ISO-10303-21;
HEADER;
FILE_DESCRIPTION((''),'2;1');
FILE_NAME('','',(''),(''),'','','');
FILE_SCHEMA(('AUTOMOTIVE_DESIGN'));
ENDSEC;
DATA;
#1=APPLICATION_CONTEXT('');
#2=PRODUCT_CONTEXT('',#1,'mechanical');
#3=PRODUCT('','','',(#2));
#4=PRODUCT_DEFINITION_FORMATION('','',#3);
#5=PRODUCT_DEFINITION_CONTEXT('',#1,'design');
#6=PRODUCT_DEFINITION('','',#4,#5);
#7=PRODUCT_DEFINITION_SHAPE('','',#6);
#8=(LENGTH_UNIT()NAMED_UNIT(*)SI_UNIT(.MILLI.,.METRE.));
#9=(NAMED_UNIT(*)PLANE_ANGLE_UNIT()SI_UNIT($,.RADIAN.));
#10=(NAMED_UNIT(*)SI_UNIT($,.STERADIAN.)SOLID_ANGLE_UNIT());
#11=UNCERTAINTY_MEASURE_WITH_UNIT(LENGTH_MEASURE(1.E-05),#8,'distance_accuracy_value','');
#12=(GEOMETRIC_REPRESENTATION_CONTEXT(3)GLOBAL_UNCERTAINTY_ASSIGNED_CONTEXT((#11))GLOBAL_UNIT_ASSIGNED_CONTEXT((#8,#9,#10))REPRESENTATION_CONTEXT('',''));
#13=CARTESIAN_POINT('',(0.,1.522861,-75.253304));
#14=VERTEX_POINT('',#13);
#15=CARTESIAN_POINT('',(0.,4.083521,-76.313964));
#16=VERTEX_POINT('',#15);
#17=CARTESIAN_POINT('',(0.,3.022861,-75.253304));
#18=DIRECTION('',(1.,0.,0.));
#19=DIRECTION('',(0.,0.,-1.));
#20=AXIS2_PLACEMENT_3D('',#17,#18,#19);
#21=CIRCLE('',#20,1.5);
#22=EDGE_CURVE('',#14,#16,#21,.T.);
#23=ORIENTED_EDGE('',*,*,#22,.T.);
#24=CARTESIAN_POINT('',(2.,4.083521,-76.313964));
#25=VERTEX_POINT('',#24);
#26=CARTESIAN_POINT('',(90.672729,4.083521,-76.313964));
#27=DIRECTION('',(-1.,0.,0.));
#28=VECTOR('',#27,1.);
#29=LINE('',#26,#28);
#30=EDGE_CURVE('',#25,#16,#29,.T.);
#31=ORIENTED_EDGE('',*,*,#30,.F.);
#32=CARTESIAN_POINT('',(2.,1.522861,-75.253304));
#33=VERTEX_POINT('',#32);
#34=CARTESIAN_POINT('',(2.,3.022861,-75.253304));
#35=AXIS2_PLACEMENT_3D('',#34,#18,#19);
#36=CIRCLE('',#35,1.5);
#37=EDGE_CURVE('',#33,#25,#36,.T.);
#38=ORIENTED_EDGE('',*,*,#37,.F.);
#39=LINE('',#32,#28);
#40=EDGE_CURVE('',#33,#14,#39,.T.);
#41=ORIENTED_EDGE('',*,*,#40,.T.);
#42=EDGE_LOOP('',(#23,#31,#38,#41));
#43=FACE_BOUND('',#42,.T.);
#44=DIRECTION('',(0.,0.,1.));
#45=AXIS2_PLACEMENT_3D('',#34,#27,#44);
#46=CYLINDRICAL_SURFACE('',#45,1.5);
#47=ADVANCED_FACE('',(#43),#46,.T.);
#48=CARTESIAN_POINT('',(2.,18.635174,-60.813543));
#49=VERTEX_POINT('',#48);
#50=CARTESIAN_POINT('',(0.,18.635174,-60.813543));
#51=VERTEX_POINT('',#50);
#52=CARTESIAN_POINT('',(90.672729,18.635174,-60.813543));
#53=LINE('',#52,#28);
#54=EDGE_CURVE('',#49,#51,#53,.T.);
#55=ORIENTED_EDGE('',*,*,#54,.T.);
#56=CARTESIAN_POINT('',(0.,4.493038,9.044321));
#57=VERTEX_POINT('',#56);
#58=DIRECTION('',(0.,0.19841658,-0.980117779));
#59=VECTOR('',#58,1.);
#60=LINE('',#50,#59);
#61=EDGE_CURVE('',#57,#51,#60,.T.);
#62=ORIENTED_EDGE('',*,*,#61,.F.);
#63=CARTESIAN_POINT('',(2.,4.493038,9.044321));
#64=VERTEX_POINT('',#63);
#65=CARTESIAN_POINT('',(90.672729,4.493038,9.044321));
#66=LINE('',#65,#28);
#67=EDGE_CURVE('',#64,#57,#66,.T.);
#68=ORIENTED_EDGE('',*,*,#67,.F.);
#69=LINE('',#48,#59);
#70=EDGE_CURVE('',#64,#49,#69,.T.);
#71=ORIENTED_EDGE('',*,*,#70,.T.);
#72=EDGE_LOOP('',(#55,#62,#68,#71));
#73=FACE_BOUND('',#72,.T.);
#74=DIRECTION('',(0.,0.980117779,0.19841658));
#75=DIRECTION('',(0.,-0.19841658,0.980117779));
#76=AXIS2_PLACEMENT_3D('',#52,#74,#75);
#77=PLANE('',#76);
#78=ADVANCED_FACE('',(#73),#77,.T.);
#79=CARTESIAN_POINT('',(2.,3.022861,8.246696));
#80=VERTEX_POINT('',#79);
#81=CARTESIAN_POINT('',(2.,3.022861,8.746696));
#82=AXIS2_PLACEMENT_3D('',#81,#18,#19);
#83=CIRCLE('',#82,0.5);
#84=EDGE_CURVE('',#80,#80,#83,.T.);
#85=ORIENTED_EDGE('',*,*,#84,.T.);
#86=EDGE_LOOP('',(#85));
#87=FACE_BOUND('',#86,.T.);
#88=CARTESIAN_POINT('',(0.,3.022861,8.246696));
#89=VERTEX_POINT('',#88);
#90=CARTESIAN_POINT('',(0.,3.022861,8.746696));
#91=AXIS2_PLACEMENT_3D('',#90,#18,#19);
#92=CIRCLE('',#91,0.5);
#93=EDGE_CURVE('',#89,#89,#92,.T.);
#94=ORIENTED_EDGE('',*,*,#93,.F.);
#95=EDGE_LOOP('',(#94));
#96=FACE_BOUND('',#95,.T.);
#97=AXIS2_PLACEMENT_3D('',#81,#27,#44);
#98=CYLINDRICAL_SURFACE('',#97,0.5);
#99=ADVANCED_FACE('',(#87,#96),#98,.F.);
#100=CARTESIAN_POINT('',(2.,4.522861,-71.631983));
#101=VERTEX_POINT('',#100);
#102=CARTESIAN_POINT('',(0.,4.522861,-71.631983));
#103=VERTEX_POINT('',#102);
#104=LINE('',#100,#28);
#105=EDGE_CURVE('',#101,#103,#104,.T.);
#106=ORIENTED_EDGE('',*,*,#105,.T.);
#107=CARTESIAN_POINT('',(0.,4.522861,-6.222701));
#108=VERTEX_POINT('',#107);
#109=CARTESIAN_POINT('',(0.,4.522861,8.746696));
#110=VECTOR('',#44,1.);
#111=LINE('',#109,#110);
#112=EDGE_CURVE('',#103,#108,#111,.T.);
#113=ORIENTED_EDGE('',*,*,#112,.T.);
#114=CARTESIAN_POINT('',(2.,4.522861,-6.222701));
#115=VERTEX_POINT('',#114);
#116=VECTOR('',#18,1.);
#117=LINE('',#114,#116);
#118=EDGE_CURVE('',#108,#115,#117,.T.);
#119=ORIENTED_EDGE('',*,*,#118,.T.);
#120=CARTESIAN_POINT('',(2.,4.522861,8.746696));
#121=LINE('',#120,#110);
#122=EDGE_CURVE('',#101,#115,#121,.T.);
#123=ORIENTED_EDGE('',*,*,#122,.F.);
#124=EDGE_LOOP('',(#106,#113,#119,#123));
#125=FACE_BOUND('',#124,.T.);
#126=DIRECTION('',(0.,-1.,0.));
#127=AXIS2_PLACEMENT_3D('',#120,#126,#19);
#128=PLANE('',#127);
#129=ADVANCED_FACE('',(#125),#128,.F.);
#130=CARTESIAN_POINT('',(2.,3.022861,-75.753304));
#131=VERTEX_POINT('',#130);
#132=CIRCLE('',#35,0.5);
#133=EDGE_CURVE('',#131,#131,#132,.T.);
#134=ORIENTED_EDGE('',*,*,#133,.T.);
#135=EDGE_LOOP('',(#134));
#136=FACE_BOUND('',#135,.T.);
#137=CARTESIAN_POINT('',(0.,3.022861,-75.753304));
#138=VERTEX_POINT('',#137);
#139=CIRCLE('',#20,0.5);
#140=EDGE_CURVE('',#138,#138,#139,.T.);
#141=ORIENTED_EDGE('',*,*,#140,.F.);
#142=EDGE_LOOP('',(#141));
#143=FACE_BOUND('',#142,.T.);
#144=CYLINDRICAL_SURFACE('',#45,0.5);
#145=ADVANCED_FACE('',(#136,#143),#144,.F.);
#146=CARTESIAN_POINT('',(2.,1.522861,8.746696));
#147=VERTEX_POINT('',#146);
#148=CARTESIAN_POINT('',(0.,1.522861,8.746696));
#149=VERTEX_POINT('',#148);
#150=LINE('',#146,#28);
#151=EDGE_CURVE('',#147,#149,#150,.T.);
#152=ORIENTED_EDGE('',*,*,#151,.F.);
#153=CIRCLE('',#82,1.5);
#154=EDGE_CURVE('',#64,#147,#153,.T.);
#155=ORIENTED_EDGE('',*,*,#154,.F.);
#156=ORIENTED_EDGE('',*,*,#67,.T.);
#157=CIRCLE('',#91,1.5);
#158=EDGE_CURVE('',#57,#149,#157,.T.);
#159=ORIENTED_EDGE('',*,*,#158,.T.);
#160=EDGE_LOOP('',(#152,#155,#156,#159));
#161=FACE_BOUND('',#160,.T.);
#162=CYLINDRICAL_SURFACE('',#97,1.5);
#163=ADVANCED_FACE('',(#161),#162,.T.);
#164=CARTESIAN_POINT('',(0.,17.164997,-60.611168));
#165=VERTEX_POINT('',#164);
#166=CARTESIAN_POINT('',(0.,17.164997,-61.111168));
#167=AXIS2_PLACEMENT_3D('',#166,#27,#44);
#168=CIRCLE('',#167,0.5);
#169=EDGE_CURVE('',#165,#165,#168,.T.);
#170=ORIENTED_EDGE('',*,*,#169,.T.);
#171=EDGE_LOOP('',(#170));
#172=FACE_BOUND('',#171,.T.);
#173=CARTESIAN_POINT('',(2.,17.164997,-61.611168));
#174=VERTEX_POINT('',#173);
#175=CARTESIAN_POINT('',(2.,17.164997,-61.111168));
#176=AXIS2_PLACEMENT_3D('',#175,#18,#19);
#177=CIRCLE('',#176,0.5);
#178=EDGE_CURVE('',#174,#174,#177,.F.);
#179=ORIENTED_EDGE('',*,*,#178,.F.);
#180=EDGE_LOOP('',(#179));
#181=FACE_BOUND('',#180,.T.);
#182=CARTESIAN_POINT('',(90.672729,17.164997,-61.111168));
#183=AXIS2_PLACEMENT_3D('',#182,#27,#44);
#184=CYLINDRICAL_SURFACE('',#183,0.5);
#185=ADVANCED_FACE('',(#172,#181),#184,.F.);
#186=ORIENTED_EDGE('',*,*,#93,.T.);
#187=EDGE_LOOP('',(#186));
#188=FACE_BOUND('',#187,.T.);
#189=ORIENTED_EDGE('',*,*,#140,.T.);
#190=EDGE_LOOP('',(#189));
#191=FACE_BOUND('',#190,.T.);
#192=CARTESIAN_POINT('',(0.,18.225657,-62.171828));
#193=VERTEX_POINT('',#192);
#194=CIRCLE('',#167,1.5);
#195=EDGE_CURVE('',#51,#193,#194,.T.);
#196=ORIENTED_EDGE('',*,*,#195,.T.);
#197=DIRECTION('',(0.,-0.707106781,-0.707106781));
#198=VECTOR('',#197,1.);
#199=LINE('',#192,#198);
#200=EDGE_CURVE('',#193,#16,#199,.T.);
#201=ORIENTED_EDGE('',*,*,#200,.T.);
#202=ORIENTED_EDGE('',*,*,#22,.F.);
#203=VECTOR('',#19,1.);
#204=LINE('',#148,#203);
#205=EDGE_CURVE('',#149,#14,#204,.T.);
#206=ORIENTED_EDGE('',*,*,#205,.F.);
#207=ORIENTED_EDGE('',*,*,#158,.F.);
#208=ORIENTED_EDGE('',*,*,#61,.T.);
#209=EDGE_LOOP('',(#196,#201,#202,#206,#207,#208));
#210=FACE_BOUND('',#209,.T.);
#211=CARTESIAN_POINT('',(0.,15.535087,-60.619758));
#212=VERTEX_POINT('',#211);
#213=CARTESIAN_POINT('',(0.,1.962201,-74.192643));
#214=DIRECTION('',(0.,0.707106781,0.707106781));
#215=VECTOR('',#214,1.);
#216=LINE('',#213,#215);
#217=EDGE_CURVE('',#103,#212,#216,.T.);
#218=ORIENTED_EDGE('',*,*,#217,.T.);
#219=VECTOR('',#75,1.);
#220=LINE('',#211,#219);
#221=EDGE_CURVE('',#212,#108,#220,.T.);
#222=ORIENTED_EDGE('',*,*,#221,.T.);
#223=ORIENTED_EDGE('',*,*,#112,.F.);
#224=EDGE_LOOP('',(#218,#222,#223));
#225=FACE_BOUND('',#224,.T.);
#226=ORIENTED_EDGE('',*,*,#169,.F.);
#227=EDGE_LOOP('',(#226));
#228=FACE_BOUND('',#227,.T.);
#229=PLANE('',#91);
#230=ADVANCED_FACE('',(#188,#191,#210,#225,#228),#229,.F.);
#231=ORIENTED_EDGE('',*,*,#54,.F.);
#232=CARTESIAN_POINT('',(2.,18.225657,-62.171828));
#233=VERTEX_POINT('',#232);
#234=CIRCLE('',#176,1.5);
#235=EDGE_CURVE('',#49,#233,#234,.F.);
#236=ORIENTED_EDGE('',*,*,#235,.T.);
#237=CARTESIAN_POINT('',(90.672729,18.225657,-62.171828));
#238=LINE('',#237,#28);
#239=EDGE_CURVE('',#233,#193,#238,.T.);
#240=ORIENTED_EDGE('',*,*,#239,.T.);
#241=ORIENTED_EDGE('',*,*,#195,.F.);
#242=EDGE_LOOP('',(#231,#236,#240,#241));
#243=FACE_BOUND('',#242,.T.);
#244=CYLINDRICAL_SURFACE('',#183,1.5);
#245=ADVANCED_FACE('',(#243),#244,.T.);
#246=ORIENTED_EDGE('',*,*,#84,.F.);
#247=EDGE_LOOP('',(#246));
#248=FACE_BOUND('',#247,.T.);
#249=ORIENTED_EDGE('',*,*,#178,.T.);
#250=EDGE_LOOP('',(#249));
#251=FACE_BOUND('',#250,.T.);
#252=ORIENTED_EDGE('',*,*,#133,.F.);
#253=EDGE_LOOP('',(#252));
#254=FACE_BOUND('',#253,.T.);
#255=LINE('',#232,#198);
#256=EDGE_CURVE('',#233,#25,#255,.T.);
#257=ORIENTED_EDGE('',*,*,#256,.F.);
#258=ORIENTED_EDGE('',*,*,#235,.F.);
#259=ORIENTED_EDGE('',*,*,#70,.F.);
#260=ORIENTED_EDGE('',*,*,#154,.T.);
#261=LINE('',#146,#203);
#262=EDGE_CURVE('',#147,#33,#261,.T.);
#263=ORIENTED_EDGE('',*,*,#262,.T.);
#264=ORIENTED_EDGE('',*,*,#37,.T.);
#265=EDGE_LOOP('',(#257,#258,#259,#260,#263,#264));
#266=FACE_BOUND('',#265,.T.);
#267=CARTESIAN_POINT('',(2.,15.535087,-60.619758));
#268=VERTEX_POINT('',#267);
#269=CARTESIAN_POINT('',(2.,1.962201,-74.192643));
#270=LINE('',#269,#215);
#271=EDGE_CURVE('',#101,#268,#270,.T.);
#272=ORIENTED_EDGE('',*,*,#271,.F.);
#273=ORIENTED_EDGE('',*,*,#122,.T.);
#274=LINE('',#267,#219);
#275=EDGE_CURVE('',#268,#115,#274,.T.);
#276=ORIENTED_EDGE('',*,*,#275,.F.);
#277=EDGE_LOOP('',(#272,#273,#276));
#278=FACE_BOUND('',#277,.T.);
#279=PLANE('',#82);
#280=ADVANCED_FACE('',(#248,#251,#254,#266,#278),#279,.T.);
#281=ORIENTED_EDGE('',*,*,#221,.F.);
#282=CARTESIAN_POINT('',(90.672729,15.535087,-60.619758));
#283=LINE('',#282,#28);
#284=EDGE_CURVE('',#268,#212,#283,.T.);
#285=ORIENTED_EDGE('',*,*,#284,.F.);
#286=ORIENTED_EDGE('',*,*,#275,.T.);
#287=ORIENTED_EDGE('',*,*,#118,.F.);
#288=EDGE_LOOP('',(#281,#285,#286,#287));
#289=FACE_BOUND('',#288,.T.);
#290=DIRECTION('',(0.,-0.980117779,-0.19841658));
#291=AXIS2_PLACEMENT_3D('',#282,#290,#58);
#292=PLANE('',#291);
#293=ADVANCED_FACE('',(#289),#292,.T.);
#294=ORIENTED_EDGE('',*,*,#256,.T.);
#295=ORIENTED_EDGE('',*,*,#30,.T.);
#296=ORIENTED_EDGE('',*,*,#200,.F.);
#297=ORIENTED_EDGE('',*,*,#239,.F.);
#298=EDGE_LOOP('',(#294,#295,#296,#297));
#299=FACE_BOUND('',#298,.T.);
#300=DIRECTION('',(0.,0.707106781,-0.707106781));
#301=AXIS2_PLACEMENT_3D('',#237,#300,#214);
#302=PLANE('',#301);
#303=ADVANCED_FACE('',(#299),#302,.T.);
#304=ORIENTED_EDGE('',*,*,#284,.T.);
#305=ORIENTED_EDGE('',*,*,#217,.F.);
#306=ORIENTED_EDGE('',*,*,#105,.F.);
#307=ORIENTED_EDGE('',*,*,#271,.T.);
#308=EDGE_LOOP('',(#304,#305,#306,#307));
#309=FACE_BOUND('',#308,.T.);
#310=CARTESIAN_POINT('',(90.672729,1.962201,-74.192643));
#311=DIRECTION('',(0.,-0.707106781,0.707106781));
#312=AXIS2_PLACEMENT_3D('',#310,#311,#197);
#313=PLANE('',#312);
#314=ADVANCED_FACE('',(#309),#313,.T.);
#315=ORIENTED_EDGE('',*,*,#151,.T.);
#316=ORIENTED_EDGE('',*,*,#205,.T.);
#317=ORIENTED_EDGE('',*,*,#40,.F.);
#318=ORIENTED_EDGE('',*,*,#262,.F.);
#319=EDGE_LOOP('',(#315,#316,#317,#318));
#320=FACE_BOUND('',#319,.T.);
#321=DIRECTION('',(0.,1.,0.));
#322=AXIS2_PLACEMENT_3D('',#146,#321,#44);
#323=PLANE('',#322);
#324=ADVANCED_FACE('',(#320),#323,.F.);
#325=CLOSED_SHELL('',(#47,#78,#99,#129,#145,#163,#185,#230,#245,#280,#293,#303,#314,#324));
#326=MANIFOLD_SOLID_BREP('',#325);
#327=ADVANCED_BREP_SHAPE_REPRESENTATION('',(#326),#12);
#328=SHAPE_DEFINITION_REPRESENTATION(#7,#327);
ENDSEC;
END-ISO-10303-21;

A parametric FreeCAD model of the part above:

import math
import FreeCAD as App
import Part
import Sketcher
from FreeCAD import Vector
Q = App.Units.Quantity

doc = App.newDocument("Part")
body = doc.addObject("PartDesign::Body", "Body")

# Sketch on YZ plane
sketch1 = body.newObject("Sketcher::SketchObject", "Sketch")
sketch1.AttachmentSupport = (doc.getObject("YZ_Plane"), [""])
sketch1.MapMode = "FlatFace"
sketch1.addGeometry([
    Part.LineSegment(Vector(4.5, -75.3, 0), Vector(4.5, 8.7, 0)),  # 0
    Part.ArcOfCircle(Part.Circle(Vector(3, 8.7, 0), Vector(0, 0, 1), 1.5), math.radians(0), math.radians(180)),  # 1
    Part.LineSegment(Vector(1.5, 8.7, 0), Vector(1.5, -75.3, 0)),  # 2
    Part.ArcOfCircle(Part.Circle(Vector(3, -75.3, 0), Vector(0, 0, 1), 1.5), math.radians(180), math.radians(360)),  # 3
    Part.Circle(Vector(3, -75.3, 0), Vector(0, 0, 1), 0.5),  # 4
    Part.Circle(Vector(3, 8.7, 0), Vector(0, 0, 1), 0.5),  # 5
], False)
sketch1.addConstraint([
    Sketcher.Constraint("Tangent", 0, 2, 1, 1),
    Sketcher.Constraint("Tangent", 1, 2, 2, 1),
    Sketcher.Constraint("Tangent", 2, 2, 3, 1),
    Sketcher.Constraint("Tangent", 3, 2, 0, 1),
    Sketcher.Constraint("Vertical", 0),
    Sketcher.Constraint("Vertical", 2),
    Sketcher.Constraint("Coincident", 4, 3, 3, 3),
    Sketcher.Constraint("Coincident", 5, 3, 1, 3),
    Sketcher.Constraint("Equal", 4, 5),
    Sketcher.Constraint("Diameter", 4, Q("1 mm")),
    Sketcher.Constraint("Radius", 1, Q("1.5 mm")),
    Sketcher.Constraint("DistanceY", 0, 1, 0, 2, Q("84 mm")),
    Sketcher.Constraint("DistanceX", -1, 1, 1, 3, Q("3.022861 mm")),
    Sketcher.Constraint("DistanceY", -1, 1, 1, 3, Q("8.746696 mm")),
])
pad1 = body.newObject("PartDesign::Pad", "Pad")
pad1.Profile = sketch1
pad1.Length = 2

# Sketch on YZ plane
sketch2 = body.newObject("Sketcher::SketchObject", "Sketch001")
sketch2.AttachmentSupport = (doc.getObject("YZ_Plane"), [""])
sketch2.MapMode = "FlatFace"
sketch2.addGeometry([
    Part.LineSegment(Vector(18.2, -62.2, 0), Vector(4.1, -76.3, 0)),  # 0
    Part.ArcOfCircle(Part.Circle(Vector(3, -75.3, 0), Vector(0, 0, 1), 1.5), math.radians(135), math.radians(315)),  # 1
    Part.LineSegment(Vector(2, -74.2, 0), Vector(15.5, -60.6, 0)),  # 2
    Part.LineSegment(Vector(15.5, -60.6, 0), Vector(1.6, 8.4, 0)),  # 3
    Part.ArcOfCircle(Part.Circle(Vector(3, 8.7, 0), Vector(0, 0, 1), 1.5), math.radians(11), math.radians(191)),  # 4
    Part.LineSegment(Vector(4.5, 9, 0), Vector(18.6, -60.8, 0)),  # 5
    Part.ArcOfCircle(Part.Circle(Vector(17.2, -61.1, 0), Vector(0, 0, 1), 1.5), math.radians(-45), math.radians(11)),  # 6
    Part.Circle(Vector(3, -75.3, 0), Vector(0, 0, 1), 0.5),  # 7
    Part.Circle(Vector(3, 8.7, 0), Vector(0, 0, 1), 0.5),  # 8
    Part.Circle(Vector(17.2, -61.1, 0), Vector(0, 0, 1), 0.5),  # 9
], False)
sketch2.addConstraint([
    Sketcher.Constraint("Tangent", 0, 2, 1, 2),
    Sketcher.Constraint("Tangent", 1, 1, 2, 1),
    Sketcher.Constraint("Coincident", 2, 2, 3, 1),
    Sketcher.Constraint("Tangent", 3, 2, 4, 2),
    Sketcher.Constraint("Tangent", 4, 1, 5, 1),
    Sketcher.Constraint("Tangent", 5, 2, 6, 2),
    Sketcher.Constraint("Tangent", 6, 1, 0, 1),
    Sketcher.Constraint("Coincident", 7, 3, 1, 3),
    Sketcher.Constraint("Coincident", 8, 3, 4, 3),
    Sketcher.Constraint("Coincident", 9, 3, 6, 3),
    Sketcher.Constraint("Equal", 1, 4),
    Sketcher.Constraint("Equal", 4, 6),
    Sketcher.Constraint("Equal", 7, 8),
    Sketcher.Constraint("Equal", 8, 9),
    Sketcher.Constraint("Parallel", 0, 2),
    Sketcher.Constraint("Parallel", 3, 5),
    Sketcher.Constraint("Vertical", 1, 3, 4, 3),
    Sketcher.Constraint("Diameter", 7, Q("1 mm")),
    Sketcher.Constraint("Radius", 1, Q("1.5 mm")),
    Sketcher.Constraint("Angle", 0, Q("-135 deg")),
    Sketcher.Constraint("Distance", 0, Q("20 mm")),
    Sketcher.Constraint("DistanceY", 1, 3, 4, 3, Q("84 mm")),
    Sketcher.Constraint("DistanceX", -1, 1, 1, 1, Q("1.962201 mm")),
    Sketcher.Constraint("DistanceY", -1, 1, 3, 2, Q("8.449072 mm")),
])
pad2 = body.newObject("PartDesign::Pad", "Pad001")
pad2.Profile = sketch2
pad2.Length = 2

doc.recompute()
